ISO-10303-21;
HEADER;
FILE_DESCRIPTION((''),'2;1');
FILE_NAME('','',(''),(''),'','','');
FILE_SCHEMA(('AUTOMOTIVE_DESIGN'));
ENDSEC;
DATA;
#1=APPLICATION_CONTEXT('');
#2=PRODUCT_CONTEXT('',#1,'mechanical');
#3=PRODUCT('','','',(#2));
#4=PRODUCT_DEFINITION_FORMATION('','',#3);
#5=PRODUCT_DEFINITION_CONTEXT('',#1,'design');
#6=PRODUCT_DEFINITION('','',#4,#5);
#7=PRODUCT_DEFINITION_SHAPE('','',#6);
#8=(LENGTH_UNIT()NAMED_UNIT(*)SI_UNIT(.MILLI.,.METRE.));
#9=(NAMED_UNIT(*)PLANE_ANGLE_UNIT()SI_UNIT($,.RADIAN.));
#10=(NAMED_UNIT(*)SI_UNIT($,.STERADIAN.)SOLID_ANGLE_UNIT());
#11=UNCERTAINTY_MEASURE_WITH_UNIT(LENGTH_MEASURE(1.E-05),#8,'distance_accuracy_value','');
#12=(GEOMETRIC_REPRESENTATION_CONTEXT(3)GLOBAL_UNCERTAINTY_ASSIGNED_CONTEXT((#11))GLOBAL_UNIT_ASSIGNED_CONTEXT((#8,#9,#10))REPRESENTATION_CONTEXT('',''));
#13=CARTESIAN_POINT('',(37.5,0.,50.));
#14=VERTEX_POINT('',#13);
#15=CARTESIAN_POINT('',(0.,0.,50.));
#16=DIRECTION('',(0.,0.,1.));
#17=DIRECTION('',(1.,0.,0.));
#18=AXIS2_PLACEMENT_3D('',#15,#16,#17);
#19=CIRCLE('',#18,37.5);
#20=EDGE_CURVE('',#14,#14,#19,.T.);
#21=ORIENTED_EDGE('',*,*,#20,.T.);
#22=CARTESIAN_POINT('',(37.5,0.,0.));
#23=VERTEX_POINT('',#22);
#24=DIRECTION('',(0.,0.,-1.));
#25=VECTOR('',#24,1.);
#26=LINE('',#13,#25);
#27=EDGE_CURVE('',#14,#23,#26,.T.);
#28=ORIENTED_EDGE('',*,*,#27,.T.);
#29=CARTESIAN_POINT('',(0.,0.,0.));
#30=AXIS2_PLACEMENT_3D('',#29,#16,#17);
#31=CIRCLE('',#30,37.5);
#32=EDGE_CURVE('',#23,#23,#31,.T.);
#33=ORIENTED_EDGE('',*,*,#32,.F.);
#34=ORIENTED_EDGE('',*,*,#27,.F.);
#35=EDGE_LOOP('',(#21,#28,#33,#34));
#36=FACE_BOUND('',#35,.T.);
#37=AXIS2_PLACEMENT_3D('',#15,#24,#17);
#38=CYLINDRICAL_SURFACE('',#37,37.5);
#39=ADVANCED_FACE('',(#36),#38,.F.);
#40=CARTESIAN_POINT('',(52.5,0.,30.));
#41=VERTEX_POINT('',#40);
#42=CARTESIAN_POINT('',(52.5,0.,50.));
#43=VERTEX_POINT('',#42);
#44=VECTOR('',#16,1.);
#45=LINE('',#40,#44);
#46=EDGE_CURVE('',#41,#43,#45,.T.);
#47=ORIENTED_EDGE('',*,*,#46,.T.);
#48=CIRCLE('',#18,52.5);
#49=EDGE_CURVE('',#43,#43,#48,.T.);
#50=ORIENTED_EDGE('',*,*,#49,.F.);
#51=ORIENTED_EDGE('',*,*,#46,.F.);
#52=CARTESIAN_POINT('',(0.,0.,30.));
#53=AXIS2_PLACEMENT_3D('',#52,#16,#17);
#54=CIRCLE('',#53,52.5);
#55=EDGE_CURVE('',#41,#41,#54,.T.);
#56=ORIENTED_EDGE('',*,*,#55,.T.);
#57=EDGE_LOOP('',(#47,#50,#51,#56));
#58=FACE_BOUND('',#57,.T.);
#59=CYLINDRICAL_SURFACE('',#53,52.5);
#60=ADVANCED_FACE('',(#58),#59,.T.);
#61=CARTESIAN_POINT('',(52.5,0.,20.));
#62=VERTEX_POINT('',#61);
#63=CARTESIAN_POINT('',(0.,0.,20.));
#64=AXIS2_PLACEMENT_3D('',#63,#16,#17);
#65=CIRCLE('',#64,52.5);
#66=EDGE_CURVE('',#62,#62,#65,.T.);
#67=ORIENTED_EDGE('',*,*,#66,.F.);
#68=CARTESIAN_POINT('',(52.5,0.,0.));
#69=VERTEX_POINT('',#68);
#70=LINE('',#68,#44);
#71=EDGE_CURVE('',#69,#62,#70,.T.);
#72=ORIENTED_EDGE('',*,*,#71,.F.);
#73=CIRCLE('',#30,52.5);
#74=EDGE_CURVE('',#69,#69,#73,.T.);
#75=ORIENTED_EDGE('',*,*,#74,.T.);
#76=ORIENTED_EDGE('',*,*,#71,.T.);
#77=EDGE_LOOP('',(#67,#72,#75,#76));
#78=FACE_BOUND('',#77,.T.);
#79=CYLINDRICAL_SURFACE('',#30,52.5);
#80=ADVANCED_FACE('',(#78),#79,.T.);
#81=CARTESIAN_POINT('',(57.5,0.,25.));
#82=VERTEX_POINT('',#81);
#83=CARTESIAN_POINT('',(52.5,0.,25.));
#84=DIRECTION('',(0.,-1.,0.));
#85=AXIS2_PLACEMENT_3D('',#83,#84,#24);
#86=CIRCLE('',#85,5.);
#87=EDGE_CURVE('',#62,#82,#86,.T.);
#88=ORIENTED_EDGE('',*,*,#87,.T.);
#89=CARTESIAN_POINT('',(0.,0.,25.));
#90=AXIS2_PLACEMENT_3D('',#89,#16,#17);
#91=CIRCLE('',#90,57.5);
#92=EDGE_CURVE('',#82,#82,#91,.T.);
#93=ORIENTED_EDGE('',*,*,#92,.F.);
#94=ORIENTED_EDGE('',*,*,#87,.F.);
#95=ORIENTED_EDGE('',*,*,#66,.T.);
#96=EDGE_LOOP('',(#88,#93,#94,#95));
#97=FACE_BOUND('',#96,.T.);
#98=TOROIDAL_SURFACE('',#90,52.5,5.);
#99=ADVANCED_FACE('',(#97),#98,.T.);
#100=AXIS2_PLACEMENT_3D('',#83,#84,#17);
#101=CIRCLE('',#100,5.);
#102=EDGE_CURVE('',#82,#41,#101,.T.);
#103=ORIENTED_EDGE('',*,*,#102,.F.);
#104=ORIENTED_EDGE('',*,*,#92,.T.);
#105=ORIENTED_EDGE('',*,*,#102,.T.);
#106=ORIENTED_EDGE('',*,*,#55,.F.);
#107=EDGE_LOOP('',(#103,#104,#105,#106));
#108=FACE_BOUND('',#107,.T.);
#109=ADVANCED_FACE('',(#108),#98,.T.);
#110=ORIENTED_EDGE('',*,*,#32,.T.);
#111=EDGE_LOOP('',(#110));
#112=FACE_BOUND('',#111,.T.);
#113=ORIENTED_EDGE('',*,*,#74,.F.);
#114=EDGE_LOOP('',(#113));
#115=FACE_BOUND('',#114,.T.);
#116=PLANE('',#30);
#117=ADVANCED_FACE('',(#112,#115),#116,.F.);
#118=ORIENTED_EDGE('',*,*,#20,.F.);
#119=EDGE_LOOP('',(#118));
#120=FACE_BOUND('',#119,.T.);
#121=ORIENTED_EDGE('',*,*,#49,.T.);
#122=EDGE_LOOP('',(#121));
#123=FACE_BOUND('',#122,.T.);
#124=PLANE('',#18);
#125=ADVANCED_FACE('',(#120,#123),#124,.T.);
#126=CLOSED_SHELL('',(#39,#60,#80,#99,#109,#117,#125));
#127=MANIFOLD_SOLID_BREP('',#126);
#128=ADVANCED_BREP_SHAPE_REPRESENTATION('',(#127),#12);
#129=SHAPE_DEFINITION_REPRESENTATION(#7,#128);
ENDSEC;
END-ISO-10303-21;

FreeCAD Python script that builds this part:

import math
import FreeCAD as App
import Part
import Sketcher
from FreeCAD import Vector
Q = App.Units.Quantity

doc = App.newDocument("Part")
body = doc.addObject("PartDesign::Body", "Body")

# Sketch on XZ plane
sketch1 = doc.addObject("Sketcher::SketchObject", "Sketch")
body.addObject(sketch1)
sketch1.AttachmentSupport = (doc.XZ_Plane, [""])
sketch1.MapMode = "FlatFace"
sketch1.addGeometry(Part.LineSegment(Vector(38, 50, 0), Vector(38, 0, 0)), False)
sketch1.addGeometry(Part.LineSegment(Vector(38, 0, 0), Vector(52, 0, 0)), False)
sketch1.addGeometry(Part.LineSegment(Vector(52, 0, 0), Vector(52, 20, 0)), False)
sketch1.addGeometry(Part.ArcOfCircle(Part.Circle(Vector(52, 25, 0), Vector(0, 0, 1), 5), math.radians(-90), math.radians(0)), False)
sketch1.addGeometry(Part.ArcOfCircle(Part.Circle(Vector(52, 25, 0), Vector(0, 0, 1), 5), math.radians(0), math.radians(90)), False)
sketch1.addGeometry(Part.LineSegment(Vector(52, 30, 0), Vector(52, 50, 0)), False)
sketch1.addGeometry(Part.LineSegment(Vector(52, 50, 0), Vector(38, 50, 0)), False)
sketch1.addConstraint(Sketcher.Constraint("Coincident", 0, 2, 1, 1))
sketch1.addConstraint(Sketcher.Constraint("Coincident", 1, 2, 2, 1))
sketch1.addConstraint(Sketcher.Constraint("Coincident", 2, 2, 3, 1))
sketch1.addConstraint(Sketcher.Constraint("Tangent", 3, 2, 4, 1))
sketch1.addConstraint(Sketcher.Constraint("Coincident", 4, 2, 5, 1))
sketch1.addConstraint(Sketcher.Constraint("Coincident", 5, 2, 6, 1))
sketch1.addConstraint(Sketcher.Constraint("Coincident", 6, 2, 0, 1))
sketch1.addConstraint(Sketcher.Constraint("Vertical", 0))
sketch1.addConstraint(Sketcher.Constraint("Horizontal", 1))
sketch1.addConstraint(Sketcher.Constraint("Vertical", 2))
sketch1.addConstraint(Sketcher.Constraint("Vertical", 5))
sketch1.addConstraint(Sketcher.Constraint("Horizontal", 6))
sketch1.addConstraint(Sketcher.Constraint("Equal", 3, 4))
sketch1.addConstraint(Sketcher.Constraint("PointOnObject", 0, 2, -1))
sketch1.addConstraint(Sketcher.Constraint("Horizontal", 4, 3, 3, 2))
sketch1.addConstraint(Sketcher.Constraint("Vertical", 4, 3, 1, 2))
sketch1.addConstraint(Sketcher.Constraint("Vertical", 2, 2, 4, 2))
sketch1.addConstraint(Sketcher.Constraint("Equal", 2, 5))
sketch1.addConstraint(Sketcher.Constraint("Radius", 3, Q("5 mm")))
sketch1.addConstraint(Sketcher.Constraint("DistanceX", 1, 1, 1, 2, Q("15 mm")))
sketch1.addConstraint(Sketcher.Constraint("DistanceY", 0, 2, 0, 1, Q("50 mm")))
sketch1.addConstraint(Sketcher.Constraint("DistanceX", -1, 1, 3, 3, Q("52.5 mm")))
revolution = doc.addObject("PartDesign::Revolution", "Revolution")
body.addObject(revolution)
revolution.Profile = sketch1
revolution.ReferenceAxis = (sketch1, ["V_Axis"])
revolution.Angle = 360

doc.recompute()
